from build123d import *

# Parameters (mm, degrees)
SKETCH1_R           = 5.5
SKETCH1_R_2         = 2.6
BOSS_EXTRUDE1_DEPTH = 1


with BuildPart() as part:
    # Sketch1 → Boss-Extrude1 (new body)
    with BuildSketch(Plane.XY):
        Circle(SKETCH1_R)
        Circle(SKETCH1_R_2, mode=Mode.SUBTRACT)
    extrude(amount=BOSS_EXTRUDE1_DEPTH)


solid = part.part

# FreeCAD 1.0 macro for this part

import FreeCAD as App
import Part
import Sketcher

V = App.Vector

doc = App.newDocument("Part")
body = doc.addObject("PartDesign::Body", "Body")

sketch1 = body.newObject("Sketcher::SketchObject", "Sketch")
sketch1.AttachmentSupport = (doc.getObject("XY_Plane"), [""])
sketch1.MapMode = "FlatFace"
sketch1.addGeometry([
    Part.Circle(V(0, 0, 0), V(0, 0, 1), 5.5),
    Part.Circle(V(0, 0, 0), V(0, 0, 1), 2.6),
], False)
sketch1.addConstraint([
    Sketcher.Constraint("Coincident", 0, 3, -1, 1),
    Sketcher.Constraint("Coincident", 1, 3, -1, 1),
    Sketcher.Constraint("Diameter", 0, 11.0),
    Sketcher.Constraint("Diameter", 1, 5.2),
])
pad1 = body.newObject("PartDesign::Pad", "Pad")
pad1.Profile = sketch1
pad1.Length = 1

doc.recompute()
